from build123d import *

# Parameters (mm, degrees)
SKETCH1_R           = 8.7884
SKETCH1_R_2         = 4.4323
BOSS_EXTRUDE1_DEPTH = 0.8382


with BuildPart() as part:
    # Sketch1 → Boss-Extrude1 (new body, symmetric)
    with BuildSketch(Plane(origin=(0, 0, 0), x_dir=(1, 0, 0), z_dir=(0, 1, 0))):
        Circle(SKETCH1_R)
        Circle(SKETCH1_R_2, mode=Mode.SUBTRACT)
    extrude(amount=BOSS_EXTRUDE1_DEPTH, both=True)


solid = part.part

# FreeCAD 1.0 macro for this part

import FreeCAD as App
import Part
import Sketcher
from FreeCAD import Vector
Q = App.Units.Quantity

doc = App.newDocument("Part")
body = doc.addObject("PartDesign::Body", "Body")

sketch1 = doc.addObject("Sketcher::SketchObject", "Sketch")
body.addObject(sketch1)
sketch1.AttachmentSupport = (doc.XZ_Plane, [""])
sketch1.MapMode = "FlatFace"
sketch1.addGeometry(Part.Circle(Vector(0, 0, 0), Vector(0, 0, 1), 8.7884), False)
sketch1.addGeometry(Part.Circle(Vector(0, 0, 0), Vector(0, 0, 1), 4.4323), False)
sketch1.addConstraint(Sketcher.Constraint("Coincident", 0, 3, -1, 1))
sketch1.addConstraint(Sketcher.Constraint("Coincident", 1, 3, -1, 1))
sketch1.addConstraint(Sketcher.Constraint("Diameter", 0, Q("0.692 in")))
sketch1.addConstraint(Sketcher.Constraint("Diameter", 1, Q("0.349 in")))
pad1 = doc.addObject("PartDesign::Pad", "Pad")
body.addObject(pad1)
pad1.Profile = sketch1
pad1.Length = Q("0.066 in")
pad1.Midplane = True

doc.recompute()
